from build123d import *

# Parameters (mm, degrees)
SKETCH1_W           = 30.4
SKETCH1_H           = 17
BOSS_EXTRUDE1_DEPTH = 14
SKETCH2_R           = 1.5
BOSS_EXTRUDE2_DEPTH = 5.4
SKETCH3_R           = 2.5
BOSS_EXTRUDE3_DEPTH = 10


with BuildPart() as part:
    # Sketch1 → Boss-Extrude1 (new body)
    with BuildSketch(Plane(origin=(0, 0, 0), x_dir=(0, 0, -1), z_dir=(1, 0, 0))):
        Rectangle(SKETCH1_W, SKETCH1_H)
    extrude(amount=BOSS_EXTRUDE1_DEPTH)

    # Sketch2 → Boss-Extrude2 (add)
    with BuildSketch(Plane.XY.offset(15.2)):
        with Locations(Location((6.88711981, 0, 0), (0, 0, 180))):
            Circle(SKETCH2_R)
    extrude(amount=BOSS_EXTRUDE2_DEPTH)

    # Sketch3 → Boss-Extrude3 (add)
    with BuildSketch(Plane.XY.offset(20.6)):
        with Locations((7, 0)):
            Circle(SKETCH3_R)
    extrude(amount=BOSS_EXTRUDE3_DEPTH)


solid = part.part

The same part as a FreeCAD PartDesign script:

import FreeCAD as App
import Part
import Sketcher
Q = App.Units.Quantity


def add_polygon(sketch, points):
    """Adds a closed chain of lines whose ends are joined by coincident constraints."""
    first, n = sketch.GeometryCount, len(points)
    for a, b in zip(points, points[1:] + points[:1]):
        sketch.addGeometry(Part.LineSegment(App.Vector(*a, 0), App.Vector(*b, 0)), False)
    for i in range(n):
        sketch.addConstraint(Sketcher.Constraint("Coincident", first + i, 2, first + (i + 1) % n, 1))

doc = App.newDocument("Part")
body = doc.addObject("PartDesign::Body", "Body")

sketch1 = body.newObject("Sketcher::SketchObject", "Sketch")
sketch1.AttachmentSupport = (doc.getObject("YZ_Plane"), [""])
sketch1.MapMode = "FlatFace"
add_polygon(sketch1, [(8, 15), (-8, 15), (-8, -15), (8, -15)])
sketch1.addConstraint([
    Sketcher.Constraint("Horizontal", 0),
    Sketcher.Constraint("Vertical", 1),
    Sketcher.Constraint("Horizontal", 2),
    Sketcher.Constraint("Vertical", 3),
    Sketcher.Constraint("Symmetric", 0, 2, 2, 2, -1, 1),
    Sketcher.Constraint("DistanceX", 0, 2, 0, 1, Q("17 mm")),
    Sketcher.Constraint("DistanceY", 1, 2, 1, 1, Q("30.4 mm")),
])
pad1 = body.newObject("PartDesign::Pad", "Pad")
pad1.Profile = sketch1
pad1.Length = 14

sketch2 = body.newObject("Sketcher::SketchObject", "Sketch001")
sketch2.AttachmentSupport = (doc.getObject("XY_Plane"), [""])
sketch2.MapMode = "FlatFace"
sketch2.AttachmentOffset = App.Placement(App.Vector(0, 0, 15.2), App.Rotation())
sketch2.addGeometry(Part.Circle(App.Vector(6.9, 0, 0), App.Vector(0, 0, 1), 1.5), False)
sketch2.addConstraint([
    Sketcher.Constraint("PointOnObject", 0, 3, -1),
    Sketcher.Constraint("Diameter", 0, Q("3 mm")),
    Sketcher.Constraint("DistanceX", -1, 1, 0, 3, Q("6.88712 mm")),
])
pad2 = body.newObject("PartDesign::Pad", "Pad001")
pad2.Profile = sketch2
pad2.Length = 5.4

sketch3 = body.newObject("Sketcher::SketchObject", "Sketch002")
sketch3.AttachmentSupport = (doc.getObject("XY_Plane"), [""])
sketch3.MapMode = "FlatFace"
sketch3.AttachmentOffset = App.Placement(App.Vector(0, 0, 20.6), App.Rotation())
sketch3.addGeometry(Part.Circle(App.Vector(7, 0, 0), App.Vector(0, 0, 1), 2.5), False)
sketch3.addConstraint([
    Sketcher.Constraint("PointOnObject", 0, 3, -1),
    Sketcher.Constraint("Diameter", 0, Q("5 mm")),
    Sketcher.Constraint("DistanceX", -1, 1, 0, 3, Q("7 mm")),
])
pad3 = body.newObject("PartDesign::Pad", "Pad002")
pad3.Profile = sketch3
pad3.Length = 10

doc.recompute()
